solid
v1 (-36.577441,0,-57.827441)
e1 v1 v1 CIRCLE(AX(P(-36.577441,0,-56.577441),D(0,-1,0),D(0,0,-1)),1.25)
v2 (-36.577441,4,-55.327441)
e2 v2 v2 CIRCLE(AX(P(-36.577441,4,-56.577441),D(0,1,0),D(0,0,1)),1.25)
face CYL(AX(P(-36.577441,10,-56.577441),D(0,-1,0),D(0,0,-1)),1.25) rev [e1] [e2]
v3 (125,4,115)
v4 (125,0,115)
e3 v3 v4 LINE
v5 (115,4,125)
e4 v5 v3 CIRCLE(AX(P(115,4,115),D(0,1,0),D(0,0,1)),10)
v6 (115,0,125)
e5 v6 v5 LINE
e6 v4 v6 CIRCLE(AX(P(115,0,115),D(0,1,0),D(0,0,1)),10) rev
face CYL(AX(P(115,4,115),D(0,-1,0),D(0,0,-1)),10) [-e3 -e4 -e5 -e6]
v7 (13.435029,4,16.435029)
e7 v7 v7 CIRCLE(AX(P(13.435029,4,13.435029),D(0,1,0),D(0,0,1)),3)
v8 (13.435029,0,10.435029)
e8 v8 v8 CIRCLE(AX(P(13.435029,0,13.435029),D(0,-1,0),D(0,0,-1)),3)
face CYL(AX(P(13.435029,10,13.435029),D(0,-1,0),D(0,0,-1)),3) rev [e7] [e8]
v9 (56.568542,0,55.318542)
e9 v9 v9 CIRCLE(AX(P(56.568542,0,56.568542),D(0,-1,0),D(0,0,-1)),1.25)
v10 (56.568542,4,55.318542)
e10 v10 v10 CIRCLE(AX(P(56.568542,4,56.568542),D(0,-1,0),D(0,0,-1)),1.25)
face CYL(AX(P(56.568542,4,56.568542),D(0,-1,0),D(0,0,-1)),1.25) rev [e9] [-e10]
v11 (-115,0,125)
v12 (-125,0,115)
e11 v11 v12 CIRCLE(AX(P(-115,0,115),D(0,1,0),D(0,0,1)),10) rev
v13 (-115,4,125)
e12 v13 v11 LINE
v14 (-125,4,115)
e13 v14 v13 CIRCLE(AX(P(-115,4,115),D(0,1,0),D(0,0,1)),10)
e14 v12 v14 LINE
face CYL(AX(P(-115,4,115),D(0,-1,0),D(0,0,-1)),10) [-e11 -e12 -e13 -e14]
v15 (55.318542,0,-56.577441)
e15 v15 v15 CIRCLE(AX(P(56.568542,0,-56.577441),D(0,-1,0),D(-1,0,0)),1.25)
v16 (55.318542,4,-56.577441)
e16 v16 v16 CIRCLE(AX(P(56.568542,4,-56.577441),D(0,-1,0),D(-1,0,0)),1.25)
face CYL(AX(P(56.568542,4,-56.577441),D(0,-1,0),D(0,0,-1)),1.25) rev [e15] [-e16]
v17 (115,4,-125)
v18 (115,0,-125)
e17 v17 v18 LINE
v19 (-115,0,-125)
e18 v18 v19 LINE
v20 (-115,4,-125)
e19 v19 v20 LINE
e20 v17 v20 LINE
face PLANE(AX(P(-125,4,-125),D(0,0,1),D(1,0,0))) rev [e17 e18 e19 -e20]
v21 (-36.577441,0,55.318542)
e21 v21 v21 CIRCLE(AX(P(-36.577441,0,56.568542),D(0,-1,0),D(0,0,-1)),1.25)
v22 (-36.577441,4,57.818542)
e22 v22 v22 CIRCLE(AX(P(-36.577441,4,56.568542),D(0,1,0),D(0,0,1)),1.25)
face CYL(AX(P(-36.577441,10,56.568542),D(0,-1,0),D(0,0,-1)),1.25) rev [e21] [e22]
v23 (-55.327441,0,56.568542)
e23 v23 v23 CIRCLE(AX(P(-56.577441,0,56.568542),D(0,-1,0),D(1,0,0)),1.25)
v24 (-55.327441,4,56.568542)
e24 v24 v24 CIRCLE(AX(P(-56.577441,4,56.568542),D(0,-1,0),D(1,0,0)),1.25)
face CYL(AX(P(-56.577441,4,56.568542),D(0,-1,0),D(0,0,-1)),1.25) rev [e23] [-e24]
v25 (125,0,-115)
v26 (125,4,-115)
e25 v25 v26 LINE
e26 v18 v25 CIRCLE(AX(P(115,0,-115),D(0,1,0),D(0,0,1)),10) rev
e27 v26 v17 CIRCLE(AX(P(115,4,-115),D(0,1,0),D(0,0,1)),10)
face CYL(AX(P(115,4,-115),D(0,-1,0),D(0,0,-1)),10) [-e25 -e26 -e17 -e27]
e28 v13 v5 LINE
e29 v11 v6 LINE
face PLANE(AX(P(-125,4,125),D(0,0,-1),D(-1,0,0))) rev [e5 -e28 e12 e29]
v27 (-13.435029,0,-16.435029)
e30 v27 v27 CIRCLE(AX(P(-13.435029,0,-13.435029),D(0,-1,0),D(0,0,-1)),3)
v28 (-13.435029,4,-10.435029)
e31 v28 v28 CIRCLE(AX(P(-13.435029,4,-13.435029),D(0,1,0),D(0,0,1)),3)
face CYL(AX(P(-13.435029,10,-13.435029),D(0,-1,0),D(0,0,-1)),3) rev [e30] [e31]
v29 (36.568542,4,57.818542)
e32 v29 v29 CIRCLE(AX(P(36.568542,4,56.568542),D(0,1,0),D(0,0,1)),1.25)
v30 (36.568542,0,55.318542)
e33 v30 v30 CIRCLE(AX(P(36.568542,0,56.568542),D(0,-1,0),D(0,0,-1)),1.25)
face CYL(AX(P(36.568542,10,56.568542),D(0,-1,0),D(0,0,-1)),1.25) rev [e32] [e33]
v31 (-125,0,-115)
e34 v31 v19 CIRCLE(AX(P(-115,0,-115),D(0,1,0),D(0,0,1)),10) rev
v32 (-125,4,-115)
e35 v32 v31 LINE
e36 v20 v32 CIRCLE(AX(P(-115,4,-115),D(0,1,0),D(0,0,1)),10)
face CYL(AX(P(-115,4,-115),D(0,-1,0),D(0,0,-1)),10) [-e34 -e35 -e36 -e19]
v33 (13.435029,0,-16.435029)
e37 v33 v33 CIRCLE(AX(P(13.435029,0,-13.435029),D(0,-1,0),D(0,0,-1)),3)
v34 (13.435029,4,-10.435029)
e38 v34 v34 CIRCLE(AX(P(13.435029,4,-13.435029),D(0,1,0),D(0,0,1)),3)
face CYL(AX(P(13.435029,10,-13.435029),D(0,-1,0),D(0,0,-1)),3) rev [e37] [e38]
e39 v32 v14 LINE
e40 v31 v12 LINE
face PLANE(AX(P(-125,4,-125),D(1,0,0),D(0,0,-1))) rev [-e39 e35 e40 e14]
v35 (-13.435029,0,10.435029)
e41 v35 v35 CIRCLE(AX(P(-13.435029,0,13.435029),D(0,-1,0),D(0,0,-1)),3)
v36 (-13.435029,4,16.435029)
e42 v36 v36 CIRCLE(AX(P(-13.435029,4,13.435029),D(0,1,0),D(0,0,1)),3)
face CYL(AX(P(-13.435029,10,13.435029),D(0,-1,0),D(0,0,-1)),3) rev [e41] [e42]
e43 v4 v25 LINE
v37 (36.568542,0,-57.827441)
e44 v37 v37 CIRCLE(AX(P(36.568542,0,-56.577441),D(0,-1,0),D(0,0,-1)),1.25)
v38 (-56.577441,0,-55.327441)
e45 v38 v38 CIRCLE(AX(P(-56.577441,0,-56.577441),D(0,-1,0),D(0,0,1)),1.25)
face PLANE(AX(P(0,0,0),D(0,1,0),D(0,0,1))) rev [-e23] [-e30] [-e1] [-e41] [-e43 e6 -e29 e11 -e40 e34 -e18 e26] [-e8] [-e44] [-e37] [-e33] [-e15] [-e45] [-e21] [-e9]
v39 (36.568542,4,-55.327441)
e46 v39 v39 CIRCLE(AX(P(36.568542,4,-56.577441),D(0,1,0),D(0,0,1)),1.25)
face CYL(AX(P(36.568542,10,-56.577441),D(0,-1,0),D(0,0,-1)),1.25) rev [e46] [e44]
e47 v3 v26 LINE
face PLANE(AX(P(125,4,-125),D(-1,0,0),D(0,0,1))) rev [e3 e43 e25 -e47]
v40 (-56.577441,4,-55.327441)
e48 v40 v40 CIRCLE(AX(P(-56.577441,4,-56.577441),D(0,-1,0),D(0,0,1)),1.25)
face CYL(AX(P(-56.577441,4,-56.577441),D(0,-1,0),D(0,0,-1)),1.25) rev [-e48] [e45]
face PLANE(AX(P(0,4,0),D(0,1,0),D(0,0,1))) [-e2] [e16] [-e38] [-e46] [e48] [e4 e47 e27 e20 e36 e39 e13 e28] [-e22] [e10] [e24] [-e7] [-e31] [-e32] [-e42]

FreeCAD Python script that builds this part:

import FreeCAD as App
import Part
import Sketcher
from FreeCAD import Vector


def edges_at(feature, points):
    """Names of the edges that pass closest to the given points."""
    edges = feature.Shape.Edges
    near = lambda p: min(range(len(edges)), key=lambda i: edges[i].distToShape(Part.Vertex(*p))[0])
    return sorted({f"Edge{near(p) + 1}" for p in points})

doc = App.newDocument("Part")
body = doc.addObject("PartDesign::Body", "Body")

# Sketch on XZ plane
sketch1 = body.newObject("Sketcher::SketchObject", "Sketch")
sketch1.AttachmentSupport = (doc.getObject("XZ_Plane"), [""])
sketch1.MapMode = "FlatFace"
sketch1.addGeometry(Part.LineSegment(Vector(-125, -125, 0), Vector(-125, 125, 0)), False)
sketch1.addGeometry(Part.LineSegment(Vector(-125, 125, 0), Vector(125, 125, 0)), False)
sketch1.addGeometry(Part.LineSegment(Vector(125, 125, 0), Vector(125, -125, 0)), False)
sketch1.addGeometry(Part.LineSegment(Vector(125, -125, 0), Vector(-125, -125, 0)), False)
sketch1.addConstraint(Sketcher.Constraint("Coincident", 0, 2, 1, 1))
sketch1.addConstraint(Sketcher.Constraint("Coincident", 1, 2, 2, 1))
sketch1.addConstraint(Sketcher.Constraint("Coincident", 2, 2, 3, 1))
sketch1.addConstraint(Sketcher.Constraint("Coincident", 3, 2, 0, 1))
sketch1.addConstraint(Sketcher.Constraint("Vertical", 0))
sketch1.addConstraint(Sketcher.Constraint("Horizontal", 1))
sketch1.addConstraint(Sketcher.Constraint("Vertical", 2))
sketch1.addConstraint(Sketcher.Constraint("Horizontal", 3))
sketch1.addConstraint(Sketcher.Constraint("Symmetric", 0, 2, 2, 2, -1, 1))
sketch1.addConstraint(Sketcher.Constraint("Equal", 3, 0))
sketch1.addConstraint(Sketcher.Constraint("DistanceX", 1, 1, 1, 2, 250.0))
pad1 = body.newObject("PartDesign::Pad", "Pad")
pad1.Profile = sketch1
pad1.Length = 4
pad1.Reversed = True
doc.recompute()

fillet = body.newObject("PartDesign::Fillet", "Fillet")
fillet.Base = (pad1, edges_at(pad1, [
    (125, 2, 125),
    (-125, 2, 125),
    (-125, 2, -125),
    (125, 2, -125),
]))
fillet.Radius = 10

# Sketch on XZ plane
sketch2 = body.newObject("Sketcher::SketchObject", "Sketch001")
sketch2.AttachmentSupport = (doc.getObject("XZ_Plane"), [""])
sketch2.MapMode = "FlatFace"
sketch2.addGeometry(Part.Circle(Vector(56.6, 56.6, 0), Vector(0, 0, 1), 1.2), False)
sketch2.addConstraint(Sketcher.Constraint("Diameter", 0, 2.5))
sketch2.addConstraint(Sketcher.Constraint("DistanceX", -1, 1, 0, 3, 56.568542))
sketch2.addConstraint(Sketcher.Constraint("DistanceY", -1, 1, 0, 3, 56.568542))
pocket1 = body.newObject("PartDesign::Pocket", "Pocket")
pocket1.Profile = sketch2
pocket1.Type = "ThroughAll"
doc.recompute()

datumline = body.newObject("PartDesign::Line", "DatumLine")
datumline.Placement = App.Placement(Vector(-0.004449, 0, -0.004449), App.Rotation(Vector(0, 0, 1), Vector(0, 1, 0)))
polarpattern = body.newObject("PartDesign::PolarPattern", "PolarPattern")
polarpattern.Originals = [pocket1]
polarpattern.Axis = (datumline, [""])
polarpattern.Angle = 360
polarpattern.Occurrences = 4
body.Tip = polarpattern

# Sketch on XZ plane
sketch3 = body.newObject("Sketcher::SketchObject", "Sketch002")
sketch3.AttachmentSupport = (doc.getObject("XZ_Plane"), [""])
sketch3.MapMode = "FlatFace"
sketch3.addGeometry(Part.Circle(Vector(-36.6, -56.6, 0), Vector(0, 0, 1), 1.2), False)
sketch3.addGeometry(Part.Circle(Vector(36.6, -56.6, 0), Vector(0, 0, 1), 1.2), False)
sketch3.addGeometry(Part.Circle(Vector(-36.6, 56.6, 0), Vector(0, 0, 1), 1.2), False)
sketch3.addGeometry(Part.Circle(Vector(36.6, 56.6, 0), Vector(0, 0, 1), 1.2), False)
sketch3.addConstraint(Sketcher.Constraint("Equal", 0, 1))
sketch3.addConstraint(Sketcher.Constraint("Equal", 1, 2))
sketch3.addConstraint(Sketcher.Constraint("Equal", 2, 3))
sketch3.addConstraint(Sketcher.Constraint("Horizontal", 0, 3, 1, 3))
sketch3.addConstraint(Sketcher.Constraint("Horizontal", 2, 3, 3, 3))
sketch3.addConstraint(Sketcher.Constraint("Vertical", 0, 3, 2, 3))
sketch3.addConstraint(Sketcher.Constraint("Vertical", 1, 3, 3, 3))
sketch3.addConstraint(Sketcher.Constraint("Diameter", 0, 2.5))
sketch3.addConstraint(Sketcher.Constraint("DistanceX", 0, 3, -1, 1, 36.577441))
sketch3.addConstraint(Sketcher.Constraint("DistanceY", 0, 3, -1, 1, 56.577441))
sketch3.addConstraint(Sketcher.Constraint("DistanceX", -1, 1, 1, 3, 36.568542))
sketch3.addConstraint(Sketcher.Constraint("DistanceY", -1, 1, 2, 3, 56.568542))
pocket2 = body.newObject("PartDesign::Pocket", "Pocket001")
pocket2.Profile = sketch3
pocket2.Length = 10

# Sketch on XZ plane
sketch4 = body.newObject("Sketcher::SketchObject", "Sketch003")
sketch4.AttachmentSupport = (doc.getObject("XZ_Plane"), [""])
sketch4.MapMode = "FlatFace"
sketch4.addGeometry(Part.Circle(Vector(13.4, 13.4, 0), Vector(0, 0, 1), 3), False)
sketch4.addGeometry(Part.Circle(Vector(13.4, -13.4, 0), Vector(0, 0, 1), 3), False)
sketch4.addGeometry(Part.Circle(Vector(-13.4, -13.4, 0), Vector(0, 0, 1), 3), False)
sketch4.addGeometry(Part.Circle(Vector(-13.4, 13.4, 0), Vector(0, 0, 1), 3), False)
sketch4.addConstraint(Sketcher.Constraint("Equal", 0, 1))
sketch4.addConstraint(Sketcher.Constraint("Equal", 1, 2))
sketch4.addConstraint(Sketcher.Constraint("Equal", 2, 3))
sketch4.addConstraint(Sketcher.Constraint("Symmetric", 0, 3, 2, 3, -1, 1))
sketch4.addConstraint(Sketcher.Constraint("Symmetric", 1, 3, 3, 3, -1, 1))
sketch4.addConstraint(Sketcher.Constraint("Symmetric", 1, 3, 2, 3, -2))
sketch4.addConstraint(Sketcher.Constraint("Diameter", 0, 6.0))
sketch4.addConstraint(Sketcher.Constraint("DistanceX", -1, 1, 0, 3, 13.435029))
sketch4.addConstraint(Sketcher.Constraint("DistanceY", -1, 1, 0, 3, 13.435029))
pocket3 = body.newObject("PartDesign::Pocket", "Pocket002")
pocket3.Profile = sketch4
pocket3.Length = 10

doc.recompute()
